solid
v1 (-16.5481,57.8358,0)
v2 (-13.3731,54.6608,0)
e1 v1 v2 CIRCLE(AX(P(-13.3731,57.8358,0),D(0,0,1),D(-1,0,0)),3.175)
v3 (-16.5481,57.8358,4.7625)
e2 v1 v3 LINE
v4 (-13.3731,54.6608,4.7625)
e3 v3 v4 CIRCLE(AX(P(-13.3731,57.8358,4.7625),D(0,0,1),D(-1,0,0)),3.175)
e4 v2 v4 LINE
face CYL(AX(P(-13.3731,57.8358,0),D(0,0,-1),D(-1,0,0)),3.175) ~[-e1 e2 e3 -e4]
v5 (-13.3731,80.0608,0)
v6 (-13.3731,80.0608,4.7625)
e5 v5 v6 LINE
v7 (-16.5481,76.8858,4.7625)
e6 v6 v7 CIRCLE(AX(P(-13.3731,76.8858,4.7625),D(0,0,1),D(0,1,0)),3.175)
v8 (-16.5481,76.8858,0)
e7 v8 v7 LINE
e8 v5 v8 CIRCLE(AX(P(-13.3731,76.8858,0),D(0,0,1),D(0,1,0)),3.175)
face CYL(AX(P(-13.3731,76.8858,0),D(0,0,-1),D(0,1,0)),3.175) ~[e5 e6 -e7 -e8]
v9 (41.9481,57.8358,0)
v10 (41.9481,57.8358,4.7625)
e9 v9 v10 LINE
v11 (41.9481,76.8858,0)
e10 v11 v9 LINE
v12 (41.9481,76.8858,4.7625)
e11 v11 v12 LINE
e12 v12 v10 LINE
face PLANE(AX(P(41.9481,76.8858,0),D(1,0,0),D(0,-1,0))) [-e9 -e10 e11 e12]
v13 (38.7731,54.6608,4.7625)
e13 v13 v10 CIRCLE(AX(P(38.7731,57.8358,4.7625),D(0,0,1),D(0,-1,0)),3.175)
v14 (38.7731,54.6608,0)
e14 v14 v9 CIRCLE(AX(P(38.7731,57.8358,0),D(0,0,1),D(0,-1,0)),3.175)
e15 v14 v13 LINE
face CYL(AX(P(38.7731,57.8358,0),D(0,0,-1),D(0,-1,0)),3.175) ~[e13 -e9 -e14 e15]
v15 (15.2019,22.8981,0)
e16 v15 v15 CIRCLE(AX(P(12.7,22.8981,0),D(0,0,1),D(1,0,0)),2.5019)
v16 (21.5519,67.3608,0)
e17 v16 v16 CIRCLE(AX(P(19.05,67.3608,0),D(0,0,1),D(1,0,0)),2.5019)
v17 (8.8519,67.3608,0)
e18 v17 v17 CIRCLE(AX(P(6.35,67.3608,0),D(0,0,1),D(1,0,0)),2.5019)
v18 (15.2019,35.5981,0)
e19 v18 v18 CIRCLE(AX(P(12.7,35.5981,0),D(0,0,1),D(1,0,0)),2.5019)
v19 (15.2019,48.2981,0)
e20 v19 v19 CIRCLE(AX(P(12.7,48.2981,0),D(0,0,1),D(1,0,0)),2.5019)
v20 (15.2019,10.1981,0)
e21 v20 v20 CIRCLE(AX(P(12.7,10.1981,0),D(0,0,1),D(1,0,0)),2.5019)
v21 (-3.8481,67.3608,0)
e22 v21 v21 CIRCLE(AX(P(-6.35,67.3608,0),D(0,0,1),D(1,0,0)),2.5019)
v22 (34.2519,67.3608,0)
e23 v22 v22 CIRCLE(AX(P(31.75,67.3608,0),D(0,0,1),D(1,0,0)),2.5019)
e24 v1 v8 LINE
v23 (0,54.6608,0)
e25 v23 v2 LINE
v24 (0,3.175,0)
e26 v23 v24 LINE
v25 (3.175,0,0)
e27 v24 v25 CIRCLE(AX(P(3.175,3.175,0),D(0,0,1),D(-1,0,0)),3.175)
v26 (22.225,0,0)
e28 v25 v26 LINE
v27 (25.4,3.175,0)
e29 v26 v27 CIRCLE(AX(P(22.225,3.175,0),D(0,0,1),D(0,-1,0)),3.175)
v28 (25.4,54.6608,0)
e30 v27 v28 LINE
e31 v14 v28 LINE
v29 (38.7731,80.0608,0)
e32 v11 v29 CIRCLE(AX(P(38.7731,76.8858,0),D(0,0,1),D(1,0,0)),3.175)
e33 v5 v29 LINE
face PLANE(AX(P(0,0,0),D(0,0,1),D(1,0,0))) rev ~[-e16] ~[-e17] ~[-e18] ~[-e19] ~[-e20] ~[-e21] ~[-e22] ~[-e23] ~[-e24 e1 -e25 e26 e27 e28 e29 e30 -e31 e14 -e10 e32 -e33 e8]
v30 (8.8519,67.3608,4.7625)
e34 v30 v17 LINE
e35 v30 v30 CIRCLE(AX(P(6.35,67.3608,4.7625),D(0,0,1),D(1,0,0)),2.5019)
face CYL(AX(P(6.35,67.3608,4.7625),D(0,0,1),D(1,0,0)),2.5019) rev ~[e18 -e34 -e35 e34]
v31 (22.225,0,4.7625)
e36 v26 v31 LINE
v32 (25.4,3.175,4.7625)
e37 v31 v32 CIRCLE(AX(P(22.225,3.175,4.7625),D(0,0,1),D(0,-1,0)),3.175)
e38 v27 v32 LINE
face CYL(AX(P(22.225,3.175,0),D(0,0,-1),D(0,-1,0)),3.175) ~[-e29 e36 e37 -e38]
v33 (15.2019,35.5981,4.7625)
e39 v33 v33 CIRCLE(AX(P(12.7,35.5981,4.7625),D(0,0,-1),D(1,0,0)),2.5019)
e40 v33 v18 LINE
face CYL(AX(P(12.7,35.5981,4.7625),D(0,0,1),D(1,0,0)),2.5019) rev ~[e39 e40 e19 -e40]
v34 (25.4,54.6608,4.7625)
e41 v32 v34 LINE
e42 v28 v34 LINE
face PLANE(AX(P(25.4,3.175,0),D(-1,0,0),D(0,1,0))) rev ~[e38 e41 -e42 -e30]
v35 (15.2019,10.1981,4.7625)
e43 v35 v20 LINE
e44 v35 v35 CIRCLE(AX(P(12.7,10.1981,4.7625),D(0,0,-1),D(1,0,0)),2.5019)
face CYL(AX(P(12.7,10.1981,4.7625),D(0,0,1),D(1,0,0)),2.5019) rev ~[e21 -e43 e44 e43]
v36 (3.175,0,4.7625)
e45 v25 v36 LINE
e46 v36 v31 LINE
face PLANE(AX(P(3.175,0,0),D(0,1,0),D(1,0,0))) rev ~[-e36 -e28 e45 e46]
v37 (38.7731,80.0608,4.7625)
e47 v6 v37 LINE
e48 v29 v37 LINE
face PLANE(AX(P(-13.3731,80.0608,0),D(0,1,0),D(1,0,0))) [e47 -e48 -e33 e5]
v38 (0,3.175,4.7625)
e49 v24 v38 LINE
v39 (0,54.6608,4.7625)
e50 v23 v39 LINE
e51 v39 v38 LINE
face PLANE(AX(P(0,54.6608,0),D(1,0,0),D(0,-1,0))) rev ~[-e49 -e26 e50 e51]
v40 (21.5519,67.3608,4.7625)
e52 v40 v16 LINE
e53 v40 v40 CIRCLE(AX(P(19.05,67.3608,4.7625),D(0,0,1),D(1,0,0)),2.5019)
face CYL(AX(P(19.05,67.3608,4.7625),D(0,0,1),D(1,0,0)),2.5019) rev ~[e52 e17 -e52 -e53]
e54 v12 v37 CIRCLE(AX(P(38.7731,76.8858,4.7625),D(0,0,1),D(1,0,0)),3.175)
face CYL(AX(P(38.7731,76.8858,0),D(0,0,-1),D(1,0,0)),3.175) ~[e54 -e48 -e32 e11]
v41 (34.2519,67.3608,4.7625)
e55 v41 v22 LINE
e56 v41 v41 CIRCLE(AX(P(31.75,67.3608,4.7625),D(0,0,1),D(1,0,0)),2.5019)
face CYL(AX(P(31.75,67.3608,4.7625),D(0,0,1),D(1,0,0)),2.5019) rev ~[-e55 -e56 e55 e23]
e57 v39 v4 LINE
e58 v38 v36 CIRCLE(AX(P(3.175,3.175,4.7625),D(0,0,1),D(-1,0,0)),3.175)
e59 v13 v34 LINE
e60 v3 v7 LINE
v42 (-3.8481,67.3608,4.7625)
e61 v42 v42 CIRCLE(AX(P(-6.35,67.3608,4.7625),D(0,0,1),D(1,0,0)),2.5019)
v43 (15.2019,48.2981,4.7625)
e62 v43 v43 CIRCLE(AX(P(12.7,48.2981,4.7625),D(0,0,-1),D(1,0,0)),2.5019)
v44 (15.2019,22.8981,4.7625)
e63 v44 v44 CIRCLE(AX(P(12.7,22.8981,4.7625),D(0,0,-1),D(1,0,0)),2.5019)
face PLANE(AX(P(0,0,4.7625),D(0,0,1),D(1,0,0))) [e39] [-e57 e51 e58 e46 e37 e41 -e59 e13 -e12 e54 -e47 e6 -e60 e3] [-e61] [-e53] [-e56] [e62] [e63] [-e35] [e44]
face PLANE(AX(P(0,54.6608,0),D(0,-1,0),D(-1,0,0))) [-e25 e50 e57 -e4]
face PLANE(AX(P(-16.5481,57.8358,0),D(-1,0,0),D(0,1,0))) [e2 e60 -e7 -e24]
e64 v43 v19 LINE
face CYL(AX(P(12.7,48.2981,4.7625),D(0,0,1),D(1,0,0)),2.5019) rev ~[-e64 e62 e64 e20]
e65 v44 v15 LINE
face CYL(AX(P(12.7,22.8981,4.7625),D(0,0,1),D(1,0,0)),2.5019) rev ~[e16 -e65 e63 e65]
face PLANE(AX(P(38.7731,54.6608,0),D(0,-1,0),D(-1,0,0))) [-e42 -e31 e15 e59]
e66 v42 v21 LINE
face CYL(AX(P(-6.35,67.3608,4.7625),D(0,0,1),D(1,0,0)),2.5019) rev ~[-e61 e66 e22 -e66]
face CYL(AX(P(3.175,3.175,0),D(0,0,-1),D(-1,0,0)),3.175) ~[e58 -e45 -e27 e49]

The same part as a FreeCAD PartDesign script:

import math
import FreeCAD as App
import Part
import Sketcher
Q = App.Units.Quantity

doc = App.newDocument("Part")
params = doc.addObject("Spreadsheet::Sheet", "Params")
for row, (alias, value) in enumerate([
    ("sketch1_radius", "0.125 in"),
    ("pad1_length", "0.1875 in"),
    ("sketch2_diameter", "0.197 in"),
], start=1):
    params.set(f"A{row}", alias)
    params.set(f"B{row}", "=" + value)
    params.setAlias(f"B{row}", alias)

body = doc.addObject("PartDesign::Body", "Body")

# Sketch on XY plane
sketch1 = body.newObject("Sketcher::SketchObject", "Sketch")
sketch1.AttachmentSupport = (doc.getObject("XY_Plane"), [""])
sketch1.MapMode = "FlatFace"
sketch1.addGeometry(Part.ArcOfCircle(Part.Circle(App.Vector(3.2, 3.2, 0), App.Vector(0, 0, 1), 3.2), math.radians(180), math.radians(270)), False)
sketch1.addGeometry(Part.LineSegment(App.Vector(3.2, 0, 0), App.Vector(22.2, 0, 0)), False)
sketch1.addGeometry(Part.ArcOfCircle(Part.Circle(App.Vector(22.2, 3.2, 0), App.Vector(0, 0, 1), 3.2), math.radians(-90), math.radians(0)), False)
sketch1.addGeometry(Part.LineSegment(App.Vector(25.4, 3.2, 0), App.Vector(25.4, 54.7, 0)), False)
sketch1.addGeometry(Part.LineSegment(App.Vector(25.4, 54.7, 0), App.Vector(38.8, 54.7, 0)), False)
sketch1.addGeometry(Part.ArcOfCircle(Part.Circle(App.Vector(38.8, 57.8, 0), App.Vector(0, 0, 1), 3.2), math.radians(-90), math.radians(0)), False)
sketch1.addGeometry(Part.LineSegment(App.Vector(41.9, 57.8, 0), App.Vector(41.9, 76.9, 0)), False)
sketch1.addGeometry(Part.ArcOfCircle(Part.Circle(App.Vector(38.8, 76.9, 0), App.Vector(0, 0, 1), 3.2), math.radians(0), math.radians(90)), False)
sketch1.addGeometry(Part.LineSegment(App.Vector(38.8, 80.1, 0), App.Vector(-13.4, 80.1, 0)), False)
sketch1.addGeometry(Part.ArcOfCircle(Part.Circle(App.Vector(-13.4, 76.9, 0), App.Vector(0, 0, 1), 3.2), math.radians(90), math.radians(180)), False)
sketch1.addGeometry(Part.LineSegment(App.Vector(-16.5, 76.9, 0), App.Vector(-16.5, 57.8, 0)), False)
sketch1.addGeometry(Part.ArcOfCircle(Part.Circle(App.Vector(-13.4, 57.8, 0), App.Vector(0, 0, 1), 3.2), math.radians(180), math.radians(270)), False)
sketch1.addGeometry(Part.LineSegment(App.Vector(-13.4, 54.7, 0), App.Vector(0, 54.7, 0)), False)
sketch1.addGeometry(Part.LineSegment(App.Vector(0, 54.7, 0), App.Vector(0, 3.2, 0)), False)
sketch1.addConstraint(Sketcher.Constraint("Tangent", 0, 2, 1, 1))
sketch1.addConstraint(Sketcher.Constraint("Tangent", 1, 2, 2, 1))
sketch1.addConstraint(Sketcher.Constraint("Tangent", 2, 2, 3, 1))
sketch1.addConstraint(Sketcher.Constraint("Coincident", 3, 2, 4, 1))
sketch1.addConstraint(Sketcher.Constraint("Tangent", 4, 2, 5, 1))
sketch1.addConstraint(Sketcher.Constraint("Tangent", 5, 2, 6, 1))
sketch1.addConstraint(Sketcher.Constraint("Tangent", 6, 2, 7, 1))
sketch1.addConstraint(Sketcher.Constraint("Tangent", 7, 2, 8, 1))
sketch1.addConstraint(Sketcher.Constraint("Tangent", 8, 2, 9, 1))
sketch1.addConstraint(Sketcher.Constraint("Tangent", 9, 2, 10, 1))
sketch1.addConstraint(Sketcher.Constraint("Tangent", 10, 2, 11, 1))
sketch1.addConstraint(Sketcher.Constraint("Tangent", 11, 2, 12, 1))
sketch1.addConstraint(Sketcher.Constraint("Coincident", 12, 2, 13, 1))
sketch1.addConstraint(Sketcher.Constraint("Tangent", 13, 2, 0, 1))
sketch1.addConstraint(Sketcher.Constraint("Horizontal", 1))
sketch1.addConstraint(Sketcher.Constraint("Vertical", 3))
sketch1.addConstraint(Sketcher.Constraint("Horizontal", 4))
sketch1.addConstraint(Sketcher.Constraint("Vertical", 6))
sketch1.addConstraint(Sketcher.Constraint("Horizontal", 8))
sketch1.addConstraint(Sketcher.Constraint("Vertical", 10))
sketch1.addConstraint(Sketcher.Constraint("Horizontal", 12))
sketch1.addConstraint(Sketcher.Constraint("Vertical", 13))
sketch1.addConstraint(Sketcher.Constraint("Equal", 0, 2))
sketch1.addConstraint(Sketcher.Constraint("Equal", 2, 5))
sketch1.addConstraint(Sketcher.Constraint("Equal", 5, 7))
sketch1.addConstraint(Sketcher.Constraint("Equal", 7, 9))
sketch1.addConstraint(Sketcher.Constraint("Equal", 9, 11))
sketch1.addConstraint(Sketcher.Constraint("PointOnObject", 0, 2, -1))
sketch1.addConstraint(Sketcher.Constraint("PointOnObject", 12, 2, -2))
sketch1.addConstraint(Sketcher.Constraint("Horizontal", 5, 3, 11, 3))
sketch1.addConstraint(Sketcher.Constraint("Equal", 4, 12))
sketch1.addConstraint(Sketcher.Constraint("Equal", 1, 6))
sketch1.addConstraint(Sketcher.Constraint("DistanceX", -1, 1, 2, 2, Q("1 in")))
sketch1.addConstraint(Sketcher.Constraint("Radius", 0, Q("0.125 in")))
sketch1.addConstraint(Sketcher.Constraint("DistanceY", -1, 1, 3, 2, Q("2.152 in")))
sketch1.addConstraint(Sketcher.Constraint("DistanceX", 9, 2, -1, 1, Q("0.6515 in")))
sketch1.setExpression("Constraints[33]", "Params.sketch1_radius")
pad1 = body.newObject("PartDesign::Pad", "Pad")
pad1.Profile = sketch1
pad1.setExpression("Length", "Params.pad1_length")

# Sketch on XY plane
sketch2 = body.newObject("Sketcher::SketchObject", "Sketch001")
sketch2.AttachmentSupport = (doc.getObject("XY_Plane"), [""])
sketch2.MapMode = "FlatFace"
sketch2.AttachmentOffset = App.Placement(App.Vector(0, 0, 0.1875 * 25.4), App.Rotation())
sketch2.addGeometry(Part.Circle(App.Vector(12.7, 10.2, 0), App.Vector(0, 0, 1), 2.5), False)
sketch2.addGeometry(Part.Circle(App.Vector(12.7, 22.9, 0), App.Vector(0, 0, 1), 2.5), False)
sketch2.addGeometry(Part.Circle(App.Vector(12.7, 35.6, 0), App.Vector(0, 0, 1), 2.5), False)
sketch2.addGeometry(Part.Circle(App.Vector(12.7, 48.3, 0), App.Vector(0, 0, 1), 2.5), False)
sketch2.addGeometry(Part.Circle(App.Vector(31.8, 67.4, 0), App.Vector(0, 0, 1), 2.5), False)
sketch2.addGeometry(Part.Circle(App.Vector(-6.3, 67.4, 0), App.Vector(0, 0, 1), 2.5), False)
sketch2.addGeometry(Part.Circle(App.Vector(6.3, 67.4, 0), App.Vector(0, 0, 1), 2.5), False)
sketch2.addGeometry(Part.Circle(App.Vector(19.1, 67.4, 0), App.Vector(0, 0, 1), 2.5), False)
sketch2.addConstraint(Sketcher.Constraint("Equal", 0, 1))
sketch2.addConstraint(Sketcher.Constraint("Equal", 1, 2))
sketch2.addConstraint(Sketcher.Constraint("Equal", 2, 3))
sketch2.addConstraint(Sketcher.Constraint("Equal", 3, 4))
sketch2.addConstraint(Sketcher.Constraint("Equal", 4, 5))
sketch2.addConstraint(Sketcher.Constraint("Equal", 5, 6))
sketch2.addConstraint(Sketcher.Constraint("Equal", 6, 7))
sketch2.addConstraint(Sketcher.Constraint("Symmetric", 5, 3, 6, 3, -2))
sketch2.addConstraint(Sketcher.Constraint("Horizontal", 4, 3, 5, 3))
sketch2.addConstraint(Sketcher.Constraint("Horizontal", 6, 3, 7, 3))
sketch2.addConstraint(Sketcher.Constraint("Vertical", 0, 3, 1, 3))
sketch2.addConstraint(Sketcher.Constraint("Vertical", 1, 3, 2, 3))
sketch2.addConstraint(Sketcher.Constraint("Vertical", 2, 3, 3, 3))
sketch2.addConstraint(Sketcher.Constraint("Diameter", 0, Q("0.197 in")))
sketch2.addConstraint(Sketcher.Constraint("DistanceX", -1, 1, 0, 3, Q("0.5 in")))
sketch2.addConstraint(Sketcher.Constraint("DistanceY", 0, 3, 1, 3, Q("0.5 in")))
sketch2.addConstraint(Sketcher.Constraint("DistanceY", 1, 3, 2, 3, Q("0.5 in")))
sketch2.addConstraint(Sketcher.Constraint("DistanceY", 2, 3, 3, 3, Q("0.5 in")))
sketch2.addConstraint(Sketcher.Constraint("DistanceX", 5, 3, 6, 3, Q("0.5 in")))
sketch2.addConstraint(Sketcher.Constraint("DistanceX", 7, 3, 4, 3, Q("0.5 in")))
sketch2.addConstraint(Sketcher.Constraint("DistanceX", 6, 3, 7, 3, Q("0.5 in")))
sketch2.addConstraint(Sketcher.Constraint("DistanceY", -1, 1, 4, 3, Q("2.652 in")))
sketch2.addConstraint(Sketcher.Constraint("DistanceY", -1, 1, 0, 3, Q("0.4015 in")))
sketch2.setExpression("Constraints[13]", "Params.sketch2_diameter")
pocket1 = body.newObject("PartDesign::Pocket", "Pocket")
pocket1.Profile = sketch2
pocket1.Type = "ThroughAll"

doc.recompute()
